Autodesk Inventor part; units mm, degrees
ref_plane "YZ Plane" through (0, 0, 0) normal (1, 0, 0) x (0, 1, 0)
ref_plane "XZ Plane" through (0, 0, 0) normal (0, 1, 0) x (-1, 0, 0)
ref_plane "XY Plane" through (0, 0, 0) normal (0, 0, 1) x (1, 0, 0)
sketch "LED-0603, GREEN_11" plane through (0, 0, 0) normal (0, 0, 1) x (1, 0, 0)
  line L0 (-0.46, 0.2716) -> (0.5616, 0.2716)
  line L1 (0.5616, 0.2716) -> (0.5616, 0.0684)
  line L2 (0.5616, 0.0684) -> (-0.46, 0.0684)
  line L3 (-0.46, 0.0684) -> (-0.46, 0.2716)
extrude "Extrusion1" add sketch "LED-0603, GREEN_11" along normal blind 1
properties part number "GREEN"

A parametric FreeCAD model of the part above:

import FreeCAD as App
import Part
import Sketcher

V = App.Vector


def add_polygon(sketch, points):
    """Adds a closed chain of lines whose ends are joined by coincident constraints."""
    first, n = sketch.GeometryCount, len(points)
    for a, b in zip(points, points[1:] + points[:1]):
        sketch.addGeometry(Part.LineSegment(App.Vector(*a, 0), App.Vector(*b, 0)), False)
    for i in range(n):
        sketch.addConstraint(Sketcher.Constraint("Coincident", first + i, 2, first + (i + 1) % n, 1))

doc = App.newDocument("Part")
params = doc.addObject("Spreadsheet::Sheet", "Params")
for row, (alias, value) in enumerate([
    ("pad1_length", "1 mm"),
], start=1):
    params.set(f"A{row}", alias)
    params.set(f"B{row}", "=" + value)
    params.setAlias(f"B{row}", alias)

body = doc.addObject("PartDesign::Body", "Body")

sketch1 = body.newObject("Sketcher::SketchObject", "Sketch")
sketch1.AttachmentSupport = (doc.getObject("XY_Plane"), [""])
sketch1.MapMode = "FlatFace"
add_polygon(sketch1, [(0.5616, 0.2716), (-0.46, 0.2716), (-0.46, 0.0684), (0.5616, 0.0684)])
sketch1.addConstraint(Sketcher.Constraint("Horizontal", 0))
sketch1.addConstraint(Sketcher.Constraint("Vertical", 1))
sketch1.addConstraint(Sketcher.Constraint("Horizontal", 2))
sketch1.addConstraint(Sketcher.Constraint("Vertical", 3))
sketch1.addConstraint(Sketcher.Constraint("DistanceX", 0, 2, -1, 1, 0.46))
sketch1.addConstraint(Sketcher.Constraint("DistanceX", 0, 2, 0, 1, 1.0216))
sketch1.addConstraint(Sketcher.Constraint("DistanceY", 1, 2, 1, 1, 0.2032))
sketch1.addConstraint(Sketcher.Constraint("DistanceY", -1, 1, 0, 2, 0.2716))
pad1 = body.newObject("PartDesign::Pad", "Pad")
pad1.Profile = sketch1
pad1.setExpression("Length", "Params.pad1_length")

doc.recompute()
